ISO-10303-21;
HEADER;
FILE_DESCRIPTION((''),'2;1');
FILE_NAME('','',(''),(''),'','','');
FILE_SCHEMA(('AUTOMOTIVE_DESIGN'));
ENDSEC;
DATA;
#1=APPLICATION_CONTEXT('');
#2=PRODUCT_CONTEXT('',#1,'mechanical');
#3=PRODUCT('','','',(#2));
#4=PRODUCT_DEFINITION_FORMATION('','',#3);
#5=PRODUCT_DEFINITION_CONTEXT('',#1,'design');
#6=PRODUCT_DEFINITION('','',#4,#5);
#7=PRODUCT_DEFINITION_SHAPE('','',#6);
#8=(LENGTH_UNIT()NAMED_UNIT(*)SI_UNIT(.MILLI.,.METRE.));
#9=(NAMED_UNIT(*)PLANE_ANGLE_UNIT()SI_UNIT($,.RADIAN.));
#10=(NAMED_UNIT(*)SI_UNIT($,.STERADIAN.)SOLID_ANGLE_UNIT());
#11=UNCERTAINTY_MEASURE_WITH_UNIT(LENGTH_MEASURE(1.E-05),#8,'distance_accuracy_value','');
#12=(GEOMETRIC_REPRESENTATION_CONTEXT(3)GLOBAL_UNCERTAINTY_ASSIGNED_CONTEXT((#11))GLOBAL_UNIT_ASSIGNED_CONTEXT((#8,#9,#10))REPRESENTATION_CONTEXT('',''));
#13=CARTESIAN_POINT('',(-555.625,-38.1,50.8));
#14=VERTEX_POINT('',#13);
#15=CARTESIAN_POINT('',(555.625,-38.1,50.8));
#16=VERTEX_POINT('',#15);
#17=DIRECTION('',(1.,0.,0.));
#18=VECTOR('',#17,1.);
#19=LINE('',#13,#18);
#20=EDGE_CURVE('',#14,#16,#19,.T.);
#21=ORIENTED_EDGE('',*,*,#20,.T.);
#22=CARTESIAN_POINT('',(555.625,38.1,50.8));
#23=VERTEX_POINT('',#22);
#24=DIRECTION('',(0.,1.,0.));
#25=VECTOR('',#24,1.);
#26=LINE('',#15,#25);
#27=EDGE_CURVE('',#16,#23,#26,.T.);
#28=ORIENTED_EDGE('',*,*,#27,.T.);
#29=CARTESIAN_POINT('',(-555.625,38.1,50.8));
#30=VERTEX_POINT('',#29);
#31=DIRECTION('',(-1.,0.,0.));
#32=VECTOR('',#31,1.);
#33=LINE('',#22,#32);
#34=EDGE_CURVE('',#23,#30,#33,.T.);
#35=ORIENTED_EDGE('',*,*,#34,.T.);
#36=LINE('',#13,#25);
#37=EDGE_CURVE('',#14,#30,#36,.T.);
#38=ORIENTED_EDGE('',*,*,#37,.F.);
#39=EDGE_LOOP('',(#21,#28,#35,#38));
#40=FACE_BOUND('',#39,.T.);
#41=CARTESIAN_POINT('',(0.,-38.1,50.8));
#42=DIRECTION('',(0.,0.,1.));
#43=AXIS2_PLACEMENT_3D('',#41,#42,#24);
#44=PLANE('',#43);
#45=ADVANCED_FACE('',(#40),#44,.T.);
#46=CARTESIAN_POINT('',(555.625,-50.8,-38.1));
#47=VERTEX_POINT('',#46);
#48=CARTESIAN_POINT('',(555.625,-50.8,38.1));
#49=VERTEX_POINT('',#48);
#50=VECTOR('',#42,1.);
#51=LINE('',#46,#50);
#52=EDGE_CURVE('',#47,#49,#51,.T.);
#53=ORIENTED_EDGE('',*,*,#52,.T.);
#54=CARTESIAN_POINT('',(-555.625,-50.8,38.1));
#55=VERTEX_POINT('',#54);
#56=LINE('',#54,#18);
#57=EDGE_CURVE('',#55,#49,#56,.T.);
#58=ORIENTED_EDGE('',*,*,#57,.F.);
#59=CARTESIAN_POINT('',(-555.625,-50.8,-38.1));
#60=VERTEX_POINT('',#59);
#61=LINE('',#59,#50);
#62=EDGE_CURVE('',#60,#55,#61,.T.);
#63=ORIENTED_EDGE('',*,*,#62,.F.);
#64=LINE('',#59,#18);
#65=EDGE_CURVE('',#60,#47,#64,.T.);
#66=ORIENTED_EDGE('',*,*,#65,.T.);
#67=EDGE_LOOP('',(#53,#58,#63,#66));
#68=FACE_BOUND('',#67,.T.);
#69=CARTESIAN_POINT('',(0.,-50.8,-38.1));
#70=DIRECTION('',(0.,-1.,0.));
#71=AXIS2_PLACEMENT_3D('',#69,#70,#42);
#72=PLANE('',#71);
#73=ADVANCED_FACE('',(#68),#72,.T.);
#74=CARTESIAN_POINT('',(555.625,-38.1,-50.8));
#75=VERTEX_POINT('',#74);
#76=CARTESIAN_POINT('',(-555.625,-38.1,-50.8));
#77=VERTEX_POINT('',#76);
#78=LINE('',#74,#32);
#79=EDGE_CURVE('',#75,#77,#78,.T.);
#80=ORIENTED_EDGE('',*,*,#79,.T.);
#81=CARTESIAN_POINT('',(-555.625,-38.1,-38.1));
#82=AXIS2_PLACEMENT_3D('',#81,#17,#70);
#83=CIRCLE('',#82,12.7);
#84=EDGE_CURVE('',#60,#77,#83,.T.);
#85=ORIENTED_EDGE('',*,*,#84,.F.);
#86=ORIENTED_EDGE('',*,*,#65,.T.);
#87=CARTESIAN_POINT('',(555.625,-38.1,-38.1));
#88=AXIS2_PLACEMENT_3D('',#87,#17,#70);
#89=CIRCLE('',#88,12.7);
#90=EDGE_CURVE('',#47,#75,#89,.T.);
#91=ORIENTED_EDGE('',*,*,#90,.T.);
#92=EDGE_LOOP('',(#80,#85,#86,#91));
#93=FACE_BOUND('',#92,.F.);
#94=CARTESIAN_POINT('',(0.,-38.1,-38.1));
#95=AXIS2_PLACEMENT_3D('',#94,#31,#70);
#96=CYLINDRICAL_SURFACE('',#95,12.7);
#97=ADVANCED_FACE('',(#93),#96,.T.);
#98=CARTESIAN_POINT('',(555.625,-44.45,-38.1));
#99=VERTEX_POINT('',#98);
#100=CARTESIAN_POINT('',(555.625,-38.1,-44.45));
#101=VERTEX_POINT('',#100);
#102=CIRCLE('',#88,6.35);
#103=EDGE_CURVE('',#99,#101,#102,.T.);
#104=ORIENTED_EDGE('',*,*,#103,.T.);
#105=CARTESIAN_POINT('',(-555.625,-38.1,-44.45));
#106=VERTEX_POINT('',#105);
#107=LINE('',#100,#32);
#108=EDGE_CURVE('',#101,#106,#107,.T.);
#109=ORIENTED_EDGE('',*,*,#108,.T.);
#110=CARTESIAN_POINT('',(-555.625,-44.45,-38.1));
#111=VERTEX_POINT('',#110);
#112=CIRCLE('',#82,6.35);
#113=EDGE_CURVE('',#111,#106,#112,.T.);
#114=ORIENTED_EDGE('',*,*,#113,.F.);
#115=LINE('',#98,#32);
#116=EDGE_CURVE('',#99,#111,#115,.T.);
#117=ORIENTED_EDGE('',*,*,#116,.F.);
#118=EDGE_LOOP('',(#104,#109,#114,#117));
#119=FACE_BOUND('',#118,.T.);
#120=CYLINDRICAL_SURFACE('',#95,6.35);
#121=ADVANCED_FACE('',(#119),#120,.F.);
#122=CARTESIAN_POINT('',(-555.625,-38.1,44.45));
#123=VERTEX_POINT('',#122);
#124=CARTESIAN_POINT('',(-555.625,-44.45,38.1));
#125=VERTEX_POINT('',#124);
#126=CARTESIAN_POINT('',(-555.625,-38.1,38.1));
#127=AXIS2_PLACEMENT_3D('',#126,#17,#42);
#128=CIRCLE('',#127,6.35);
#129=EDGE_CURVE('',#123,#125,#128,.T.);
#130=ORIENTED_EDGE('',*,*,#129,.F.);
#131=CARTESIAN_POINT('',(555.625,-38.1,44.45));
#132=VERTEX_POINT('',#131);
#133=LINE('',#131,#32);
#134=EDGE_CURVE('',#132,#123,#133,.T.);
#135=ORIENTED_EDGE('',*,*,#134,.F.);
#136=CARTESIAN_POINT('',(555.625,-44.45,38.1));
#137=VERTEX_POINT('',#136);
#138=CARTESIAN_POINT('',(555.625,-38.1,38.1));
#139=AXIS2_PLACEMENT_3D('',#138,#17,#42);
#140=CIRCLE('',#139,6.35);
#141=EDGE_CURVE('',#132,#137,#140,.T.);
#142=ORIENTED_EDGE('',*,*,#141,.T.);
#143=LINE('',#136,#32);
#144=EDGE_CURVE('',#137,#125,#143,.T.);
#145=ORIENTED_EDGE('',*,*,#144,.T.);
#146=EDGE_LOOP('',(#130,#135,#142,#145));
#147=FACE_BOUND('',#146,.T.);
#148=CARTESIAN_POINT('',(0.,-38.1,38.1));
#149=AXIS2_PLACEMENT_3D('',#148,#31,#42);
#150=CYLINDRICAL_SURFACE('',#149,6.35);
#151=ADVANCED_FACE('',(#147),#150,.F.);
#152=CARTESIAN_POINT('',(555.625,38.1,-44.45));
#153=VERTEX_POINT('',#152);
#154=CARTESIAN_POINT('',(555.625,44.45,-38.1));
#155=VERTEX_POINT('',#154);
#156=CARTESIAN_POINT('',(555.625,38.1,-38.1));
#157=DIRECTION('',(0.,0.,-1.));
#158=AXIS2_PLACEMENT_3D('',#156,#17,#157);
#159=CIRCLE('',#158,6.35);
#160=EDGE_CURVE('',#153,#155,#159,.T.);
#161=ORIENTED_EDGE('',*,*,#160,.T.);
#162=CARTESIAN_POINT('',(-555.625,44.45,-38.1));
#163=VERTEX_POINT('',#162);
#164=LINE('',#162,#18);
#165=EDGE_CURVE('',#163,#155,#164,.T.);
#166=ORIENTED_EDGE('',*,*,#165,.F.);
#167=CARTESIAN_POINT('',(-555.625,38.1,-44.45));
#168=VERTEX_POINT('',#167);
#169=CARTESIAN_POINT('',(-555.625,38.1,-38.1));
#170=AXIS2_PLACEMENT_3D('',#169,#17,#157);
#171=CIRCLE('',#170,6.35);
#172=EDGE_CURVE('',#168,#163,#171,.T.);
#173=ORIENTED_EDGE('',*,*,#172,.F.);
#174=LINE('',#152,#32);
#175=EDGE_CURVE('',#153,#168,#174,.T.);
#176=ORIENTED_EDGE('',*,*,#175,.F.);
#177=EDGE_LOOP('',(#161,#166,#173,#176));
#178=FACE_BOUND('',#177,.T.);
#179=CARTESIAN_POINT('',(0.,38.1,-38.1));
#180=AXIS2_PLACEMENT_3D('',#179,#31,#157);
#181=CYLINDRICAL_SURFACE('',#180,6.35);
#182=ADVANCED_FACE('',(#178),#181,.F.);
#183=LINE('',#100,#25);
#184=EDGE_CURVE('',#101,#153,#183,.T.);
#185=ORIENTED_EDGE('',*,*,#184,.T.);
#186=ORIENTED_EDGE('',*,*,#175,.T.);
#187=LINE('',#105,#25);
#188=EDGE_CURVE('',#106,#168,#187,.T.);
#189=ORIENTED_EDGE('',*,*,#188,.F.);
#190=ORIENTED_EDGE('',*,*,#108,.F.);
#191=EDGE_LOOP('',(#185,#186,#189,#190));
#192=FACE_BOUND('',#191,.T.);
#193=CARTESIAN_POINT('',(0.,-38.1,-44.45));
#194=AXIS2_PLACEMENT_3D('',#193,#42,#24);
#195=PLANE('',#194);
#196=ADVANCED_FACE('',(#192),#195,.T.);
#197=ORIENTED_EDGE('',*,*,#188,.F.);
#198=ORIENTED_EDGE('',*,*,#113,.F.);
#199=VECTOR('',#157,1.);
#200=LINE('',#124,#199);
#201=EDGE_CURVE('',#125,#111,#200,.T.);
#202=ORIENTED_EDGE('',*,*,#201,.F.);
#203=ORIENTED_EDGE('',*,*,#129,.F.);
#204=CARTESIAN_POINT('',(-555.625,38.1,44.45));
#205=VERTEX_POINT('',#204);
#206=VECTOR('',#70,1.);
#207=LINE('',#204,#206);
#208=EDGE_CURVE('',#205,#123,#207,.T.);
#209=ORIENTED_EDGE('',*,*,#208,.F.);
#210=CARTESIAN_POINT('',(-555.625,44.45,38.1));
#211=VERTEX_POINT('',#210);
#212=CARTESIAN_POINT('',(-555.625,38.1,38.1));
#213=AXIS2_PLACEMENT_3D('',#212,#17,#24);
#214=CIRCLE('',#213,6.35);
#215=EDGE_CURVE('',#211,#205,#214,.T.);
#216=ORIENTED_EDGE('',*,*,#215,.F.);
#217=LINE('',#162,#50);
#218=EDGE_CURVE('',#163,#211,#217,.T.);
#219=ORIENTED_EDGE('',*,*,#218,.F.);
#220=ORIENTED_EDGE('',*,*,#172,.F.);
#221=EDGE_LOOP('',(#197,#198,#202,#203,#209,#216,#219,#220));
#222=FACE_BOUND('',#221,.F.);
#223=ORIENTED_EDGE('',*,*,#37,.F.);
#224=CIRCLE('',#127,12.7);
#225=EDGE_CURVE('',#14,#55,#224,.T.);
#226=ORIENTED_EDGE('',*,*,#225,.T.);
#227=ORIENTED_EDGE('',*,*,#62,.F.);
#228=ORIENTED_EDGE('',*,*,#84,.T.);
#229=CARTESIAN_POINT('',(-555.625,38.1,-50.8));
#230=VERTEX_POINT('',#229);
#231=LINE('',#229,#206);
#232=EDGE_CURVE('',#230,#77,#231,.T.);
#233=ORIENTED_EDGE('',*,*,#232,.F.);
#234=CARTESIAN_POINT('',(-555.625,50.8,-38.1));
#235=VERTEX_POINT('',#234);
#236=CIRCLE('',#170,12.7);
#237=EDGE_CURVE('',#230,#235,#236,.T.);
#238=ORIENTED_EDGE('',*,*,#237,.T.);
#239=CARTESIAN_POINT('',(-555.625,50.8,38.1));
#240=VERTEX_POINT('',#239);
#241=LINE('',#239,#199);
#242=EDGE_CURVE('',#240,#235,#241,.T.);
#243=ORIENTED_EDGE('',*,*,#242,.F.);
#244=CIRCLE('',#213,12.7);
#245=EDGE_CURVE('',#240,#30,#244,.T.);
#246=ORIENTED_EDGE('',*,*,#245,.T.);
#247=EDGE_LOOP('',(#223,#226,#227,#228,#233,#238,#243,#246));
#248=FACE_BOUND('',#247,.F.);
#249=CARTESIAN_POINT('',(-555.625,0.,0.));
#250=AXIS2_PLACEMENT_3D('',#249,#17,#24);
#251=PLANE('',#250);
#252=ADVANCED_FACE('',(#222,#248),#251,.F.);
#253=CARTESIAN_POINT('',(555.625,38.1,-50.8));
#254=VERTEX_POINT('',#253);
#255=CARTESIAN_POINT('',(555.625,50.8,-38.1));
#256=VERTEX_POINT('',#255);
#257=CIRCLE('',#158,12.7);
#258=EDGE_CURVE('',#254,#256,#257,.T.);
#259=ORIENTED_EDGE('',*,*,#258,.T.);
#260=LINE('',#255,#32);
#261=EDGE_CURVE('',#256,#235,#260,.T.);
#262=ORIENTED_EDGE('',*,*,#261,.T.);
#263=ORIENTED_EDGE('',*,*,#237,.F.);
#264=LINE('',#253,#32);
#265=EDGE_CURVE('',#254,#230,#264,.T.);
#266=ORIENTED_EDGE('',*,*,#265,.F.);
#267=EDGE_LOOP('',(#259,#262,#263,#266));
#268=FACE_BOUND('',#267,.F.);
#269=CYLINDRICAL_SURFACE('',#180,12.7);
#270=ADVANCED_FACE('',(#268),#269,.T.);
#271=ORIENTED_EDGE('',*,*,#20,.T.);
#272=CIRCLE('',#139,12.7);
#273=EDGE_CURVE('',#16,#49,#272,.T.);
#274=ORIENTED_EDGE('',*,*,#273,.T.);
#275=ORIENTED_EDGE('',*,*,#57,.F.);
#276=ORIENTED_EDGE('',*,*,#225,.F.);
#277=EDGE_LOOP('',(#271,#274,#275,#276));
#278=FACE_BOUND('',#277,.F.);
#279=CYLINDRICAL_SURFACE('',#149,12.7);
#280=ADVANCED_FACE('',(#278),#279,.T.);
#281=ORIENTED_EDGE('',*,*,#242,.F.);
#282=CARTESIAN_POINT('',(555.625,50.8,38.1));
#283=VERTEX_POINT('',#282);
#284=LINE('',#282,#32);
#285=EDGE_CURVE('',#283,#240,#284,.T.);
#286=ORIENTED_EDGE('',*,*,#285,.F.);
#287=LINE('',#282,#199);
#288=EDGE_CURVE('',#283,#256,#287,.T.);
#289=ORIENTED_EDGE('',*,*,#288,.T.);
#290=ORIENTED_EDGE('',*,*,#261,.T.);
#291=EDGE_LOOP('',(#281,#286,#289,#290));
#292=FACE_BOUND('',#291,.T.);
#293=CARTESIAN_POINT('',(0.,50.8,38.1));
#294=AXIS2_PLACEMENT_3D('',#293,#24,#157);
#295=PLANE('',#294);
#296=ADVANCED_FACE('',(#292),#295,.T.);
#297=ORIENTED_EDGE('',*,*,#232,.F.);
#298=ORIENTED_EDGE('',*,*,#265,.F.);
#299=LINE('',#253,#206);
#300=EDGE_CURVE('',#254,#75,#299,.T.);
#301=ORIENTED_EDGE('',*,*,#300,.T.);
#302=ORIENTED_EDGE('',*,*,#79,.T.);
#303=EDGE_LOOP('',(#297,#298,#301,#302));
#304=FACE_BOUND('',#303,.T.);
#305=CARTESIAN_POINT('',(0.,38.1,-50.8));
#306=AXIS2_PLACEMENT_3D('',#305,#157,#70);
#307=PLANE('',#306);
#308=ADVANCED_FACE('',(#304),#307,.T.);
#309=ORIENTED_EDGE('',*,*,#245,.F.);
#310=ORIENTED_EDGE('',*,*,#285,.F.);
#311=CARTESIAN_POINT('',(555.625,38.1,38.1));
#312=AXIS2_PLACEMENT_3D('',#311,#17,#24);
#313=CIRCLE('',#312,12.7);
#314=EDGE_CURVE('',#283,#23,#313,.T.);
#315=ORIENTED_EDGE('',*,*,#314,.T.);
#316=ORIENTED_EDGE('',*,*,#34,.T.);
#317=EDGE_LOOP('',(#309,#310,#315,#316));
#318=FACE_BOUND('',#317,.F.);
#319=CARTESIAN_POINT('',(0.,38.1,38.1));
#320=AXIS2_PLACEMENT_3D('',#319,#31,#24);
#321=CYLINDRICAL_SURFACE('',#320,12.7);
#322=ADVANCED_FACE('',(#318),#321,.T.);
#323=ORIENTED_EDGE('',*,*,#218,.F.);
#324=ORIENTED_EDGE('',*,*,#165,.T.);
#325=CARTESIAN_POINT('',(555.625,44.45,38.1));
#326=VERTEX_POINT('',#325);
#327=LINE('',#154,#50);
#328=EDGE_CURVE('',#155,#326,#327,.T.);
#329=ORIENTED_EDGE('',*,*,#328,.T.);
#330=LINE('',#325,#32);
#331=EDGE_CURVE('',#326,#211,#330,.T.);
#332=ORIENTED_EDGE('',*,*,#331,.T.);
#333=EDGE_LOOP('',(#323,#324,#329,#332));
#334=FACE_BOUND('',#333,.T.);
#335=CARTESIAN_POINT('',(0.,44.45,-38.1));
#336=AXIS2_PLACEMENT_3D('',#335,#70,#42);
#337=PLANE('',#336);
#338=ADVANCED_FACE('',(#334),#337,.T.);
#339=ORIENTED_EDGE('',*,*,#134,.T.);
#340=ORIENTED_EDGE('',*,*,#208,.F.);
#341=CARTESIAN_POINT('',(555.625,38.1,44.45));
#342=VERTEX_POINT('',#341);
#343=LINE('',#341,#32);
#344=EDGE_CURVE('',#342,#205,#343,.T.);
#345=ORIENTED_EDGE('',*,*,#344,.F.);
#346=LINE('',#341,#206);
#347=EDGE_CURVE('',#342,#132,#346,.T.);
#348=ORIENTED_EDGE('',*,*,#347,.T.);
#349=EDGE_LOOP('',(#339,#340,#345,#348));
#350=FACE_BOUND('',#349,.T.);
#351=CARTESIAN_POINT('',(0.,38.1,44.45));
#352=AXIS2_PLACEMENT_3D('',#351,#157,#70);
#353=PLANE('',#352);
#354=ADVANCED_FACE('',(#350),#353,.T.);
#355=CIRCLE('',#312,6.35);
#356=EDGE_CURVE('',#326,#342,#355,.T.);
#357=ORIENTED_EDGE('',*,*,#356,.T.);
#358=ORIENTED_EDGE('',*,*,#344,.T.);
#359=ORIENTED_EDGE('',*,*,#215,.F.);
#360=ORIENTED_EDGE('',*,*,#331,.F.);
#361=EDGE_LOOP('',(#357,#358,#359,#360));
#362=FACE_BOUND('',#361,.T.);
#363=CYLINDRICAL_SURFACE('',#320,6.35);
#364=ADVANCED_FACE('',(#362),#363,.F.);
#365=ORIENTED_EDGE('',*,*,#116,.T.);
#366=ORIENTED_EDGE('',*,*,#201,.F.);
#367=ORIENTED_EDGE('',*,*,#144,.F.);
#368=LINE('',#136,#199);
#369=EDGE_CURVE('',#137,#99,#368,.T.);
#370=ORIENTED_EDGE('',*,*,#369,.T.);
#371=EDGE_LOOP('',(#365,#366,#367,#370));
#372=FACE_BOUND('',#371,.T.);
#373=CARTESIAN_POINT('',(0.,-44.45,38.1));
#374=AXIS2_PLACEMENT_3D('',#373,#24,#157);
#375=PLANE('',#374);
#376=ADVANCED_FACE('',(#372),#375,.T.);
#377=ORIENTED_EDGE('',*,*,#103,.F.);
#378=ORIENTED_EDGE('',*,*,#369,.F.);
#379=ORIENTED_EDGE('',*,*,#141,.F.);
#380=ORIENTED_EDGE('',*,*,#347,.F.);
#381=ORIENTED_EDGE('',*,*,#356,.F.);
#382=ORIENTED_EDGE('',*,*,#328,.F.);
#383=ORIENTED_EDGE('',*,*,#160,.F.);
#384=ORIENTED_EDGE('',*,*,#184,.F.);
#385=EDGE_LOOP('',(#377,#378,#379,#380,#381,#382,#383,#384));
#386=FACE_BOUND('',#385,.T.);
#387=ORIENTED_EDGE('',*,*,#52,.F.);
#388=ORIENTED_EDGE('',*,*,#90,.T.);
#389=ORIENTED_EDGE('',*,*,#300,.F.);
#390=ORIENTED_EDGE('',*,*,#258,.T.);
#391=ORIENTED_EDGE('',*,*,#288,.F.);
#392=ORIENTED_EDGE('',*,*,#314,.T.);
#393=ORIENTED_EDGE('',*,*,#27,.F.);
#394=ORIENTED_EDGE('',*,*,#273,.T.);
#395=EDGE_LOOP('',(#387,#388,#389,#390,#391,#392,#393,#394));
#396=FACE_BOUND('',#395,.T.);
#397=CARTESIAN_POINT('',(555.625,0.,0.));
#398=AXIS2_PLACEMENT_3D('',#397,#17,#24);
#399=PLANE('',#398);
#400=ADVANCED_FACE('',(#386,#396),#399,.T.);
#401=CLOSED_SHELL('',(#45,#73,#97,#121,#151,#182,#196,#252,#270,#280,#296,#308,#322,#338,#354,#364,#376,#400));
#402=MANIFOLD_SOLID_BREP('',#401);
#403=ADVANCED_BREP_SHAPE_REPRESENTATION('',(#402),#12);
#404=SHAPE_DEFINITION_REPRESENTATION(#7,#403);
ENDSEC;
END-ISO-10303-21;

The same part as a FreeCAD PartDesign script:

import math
import FreeCAD as App
import Part
import Sketcher

V = App.Vector
Q = App.Units.Quantity

doc = App.newDocument("Part")
body = doc.addObject("PartDesign::Body", "Body")

sketch1 = body.newObject("Sketcher::SketchObject", "Sketch")
sketch1.AttachmentSupport = (doc.getObject("YZ_Plane"), [""])
sketch1.MapMode = "FlatFace"
sketch1.addGeometry([
    Part.LineSegment(V(38, 51, 0), V(-38, 51, 0)),
    Part.ArcOfCircle(Part.Circle(V(-38, 38, 0), V(0, 0, 1), 13), math.radians(90), math.radians(180)),
    Part.LineSegment(V(-51, 38, 0), V(-51, -38, 0)),
    Part.ArcOfCircle(Part.Circle(V(-38, -38, 0), V(0, 0, 1), 13), math.radians(180), math.radians(270)),
    Part.LineSegment(V(-38, -51, 0), V(38, -51, 0)),
    Part.ArcOfCircle(Part.Circle(V(38, -38, 0), V(0, 0, 1), 13), math.radians(-90), math.radians(0)),
    Part.LineSegment(V(51, -38, 0), V(51, 38, 0)),
    Part.ArcOfCircle(Part.Circle(V(38, 38, 0), V(0, 0, 1), 13), math.radians(0), math.radians(90)),
    Part.LineSegment(V(44, 38, 0), V(44, -38, 0)),
    Part.ArcOfCircle(Part.Circle(V(38, -38, 0), V(0, 0, 1), 6), math.radians(-90), math.radians(0)),
    Part.LineSegment(V(38, -44, 0), V(-38, -44, 0)),
    Part.ArcOfCircle(Part.Circle(V(-38, -38, 0), V(0, 0, 1), 6), math.radians(180), math.radians(270)),
    Part.LineSegment(V(-44, -38, 0), V(-44, 38, 0)),
    Part.ArcOfCircle(Part.Circle(V(-38, 38, 0), V(0, 0, 1), 6), math.radians(90), math.radians(180)),
    Part.LineSegment(V(-38, 44, 0), V(38, 44, 0)),
    Part.ArcOfCircle(Part.Circle(V(38, 38, 0), V(0, 0, 1), 6), math.radians(0), math.radians(90)),
], False)
sketch1.addConstraint([
    Sketcher.Constraint("Tangent", 0, 2, 1, 1),
    Sketcher.Constraint("Tangent", 1, 2, 2, 1),
    Sketcher.Constraint("Tangent", 2, 2, 3, 1),
    Sketcher.Constraint("Tangent", 3, 2, 4, 1),
    Sketcher.Constraint("Tangent", 4, 2, 5, 1),
    Sketcher.Constraint("Tangent", 5, 2, 6, 1),
    Sketcher.Constraint("Tangent", 6, 2, 7, 1),
    Sketcher.Constraint("Tangent", 7, 2, 0, 1),
    Sketcher.Constraint("Tangent", 8, 2, 9, 2),
    Sketcher.Constraint("Tangent", 9, 1, 10, 1),
    Sketcher.Constraint("Tangent", 10, 2, 11, 2),
    Sketcher.Constraint("Tangent", 11, 1, 12, 1),
    Sketcher.Constraint("Tangent", 12, 2, 13, 2),
    Sketcher.Constraint("Tangent", 13, 1, 14, 1),
    Sketcher.Constraint("Tangent", 14, 2, 15, 2),
    Sketcher.Constraint("Tangent", 15, 1, 8, 1),
    Sketcher.Constraint("Horizontal", 0),
    Sketcher.Constraint("Vertical", 2),
    Sketcher.Constraint("Horizontal", 4),
    Sketcher.Constraint("Vertical", 6),
    Sketcher.Constraint("Vertical", 8),
    Sketcher.Constraint("Horizontal", 10),
    Sketcher.Constraint("Vertical", 12),
    Sketcher.Constraint("Horizontal", 14),
    Sketcher.Constraint("Coincident", 9, 3, 5, 3),
    Sketcher.Constraint("Coincident", 11, 3, 3, 3),
    Sketcher.Constraint("Coincident", 13, 3, 1, 3),
    Sketcher.Constraint("Equal", 1, 3),
    Sketcher.Constraint("Equal", 3, 5),
    Sketcher.Constraint("Equal", 5, 7),
    Sketcher.Constraint("Equal", 13, 15),
    Sketcher.Constraint("Symmetric", 1, 3, 5, 3, -1, 1),
    Sketcher.Constraint("Equal", 14, 2),
    Sketcher.Constraint("Radius", 1, Q("0.5 in")),
    Sketcher.Constraint("Radius", 9, Q("0.25 in")),
    Sketcher.Constraint("DistanceX", 0, 2, 0, 1, Q("3 in")),
])
pad1 = body.newObject("PartDesign::Pad", "Pad")
pad1.Profile = sketch1
pad1.Length = Q("43.75 in")
pad1.Midplane = True

doc.recompute()
